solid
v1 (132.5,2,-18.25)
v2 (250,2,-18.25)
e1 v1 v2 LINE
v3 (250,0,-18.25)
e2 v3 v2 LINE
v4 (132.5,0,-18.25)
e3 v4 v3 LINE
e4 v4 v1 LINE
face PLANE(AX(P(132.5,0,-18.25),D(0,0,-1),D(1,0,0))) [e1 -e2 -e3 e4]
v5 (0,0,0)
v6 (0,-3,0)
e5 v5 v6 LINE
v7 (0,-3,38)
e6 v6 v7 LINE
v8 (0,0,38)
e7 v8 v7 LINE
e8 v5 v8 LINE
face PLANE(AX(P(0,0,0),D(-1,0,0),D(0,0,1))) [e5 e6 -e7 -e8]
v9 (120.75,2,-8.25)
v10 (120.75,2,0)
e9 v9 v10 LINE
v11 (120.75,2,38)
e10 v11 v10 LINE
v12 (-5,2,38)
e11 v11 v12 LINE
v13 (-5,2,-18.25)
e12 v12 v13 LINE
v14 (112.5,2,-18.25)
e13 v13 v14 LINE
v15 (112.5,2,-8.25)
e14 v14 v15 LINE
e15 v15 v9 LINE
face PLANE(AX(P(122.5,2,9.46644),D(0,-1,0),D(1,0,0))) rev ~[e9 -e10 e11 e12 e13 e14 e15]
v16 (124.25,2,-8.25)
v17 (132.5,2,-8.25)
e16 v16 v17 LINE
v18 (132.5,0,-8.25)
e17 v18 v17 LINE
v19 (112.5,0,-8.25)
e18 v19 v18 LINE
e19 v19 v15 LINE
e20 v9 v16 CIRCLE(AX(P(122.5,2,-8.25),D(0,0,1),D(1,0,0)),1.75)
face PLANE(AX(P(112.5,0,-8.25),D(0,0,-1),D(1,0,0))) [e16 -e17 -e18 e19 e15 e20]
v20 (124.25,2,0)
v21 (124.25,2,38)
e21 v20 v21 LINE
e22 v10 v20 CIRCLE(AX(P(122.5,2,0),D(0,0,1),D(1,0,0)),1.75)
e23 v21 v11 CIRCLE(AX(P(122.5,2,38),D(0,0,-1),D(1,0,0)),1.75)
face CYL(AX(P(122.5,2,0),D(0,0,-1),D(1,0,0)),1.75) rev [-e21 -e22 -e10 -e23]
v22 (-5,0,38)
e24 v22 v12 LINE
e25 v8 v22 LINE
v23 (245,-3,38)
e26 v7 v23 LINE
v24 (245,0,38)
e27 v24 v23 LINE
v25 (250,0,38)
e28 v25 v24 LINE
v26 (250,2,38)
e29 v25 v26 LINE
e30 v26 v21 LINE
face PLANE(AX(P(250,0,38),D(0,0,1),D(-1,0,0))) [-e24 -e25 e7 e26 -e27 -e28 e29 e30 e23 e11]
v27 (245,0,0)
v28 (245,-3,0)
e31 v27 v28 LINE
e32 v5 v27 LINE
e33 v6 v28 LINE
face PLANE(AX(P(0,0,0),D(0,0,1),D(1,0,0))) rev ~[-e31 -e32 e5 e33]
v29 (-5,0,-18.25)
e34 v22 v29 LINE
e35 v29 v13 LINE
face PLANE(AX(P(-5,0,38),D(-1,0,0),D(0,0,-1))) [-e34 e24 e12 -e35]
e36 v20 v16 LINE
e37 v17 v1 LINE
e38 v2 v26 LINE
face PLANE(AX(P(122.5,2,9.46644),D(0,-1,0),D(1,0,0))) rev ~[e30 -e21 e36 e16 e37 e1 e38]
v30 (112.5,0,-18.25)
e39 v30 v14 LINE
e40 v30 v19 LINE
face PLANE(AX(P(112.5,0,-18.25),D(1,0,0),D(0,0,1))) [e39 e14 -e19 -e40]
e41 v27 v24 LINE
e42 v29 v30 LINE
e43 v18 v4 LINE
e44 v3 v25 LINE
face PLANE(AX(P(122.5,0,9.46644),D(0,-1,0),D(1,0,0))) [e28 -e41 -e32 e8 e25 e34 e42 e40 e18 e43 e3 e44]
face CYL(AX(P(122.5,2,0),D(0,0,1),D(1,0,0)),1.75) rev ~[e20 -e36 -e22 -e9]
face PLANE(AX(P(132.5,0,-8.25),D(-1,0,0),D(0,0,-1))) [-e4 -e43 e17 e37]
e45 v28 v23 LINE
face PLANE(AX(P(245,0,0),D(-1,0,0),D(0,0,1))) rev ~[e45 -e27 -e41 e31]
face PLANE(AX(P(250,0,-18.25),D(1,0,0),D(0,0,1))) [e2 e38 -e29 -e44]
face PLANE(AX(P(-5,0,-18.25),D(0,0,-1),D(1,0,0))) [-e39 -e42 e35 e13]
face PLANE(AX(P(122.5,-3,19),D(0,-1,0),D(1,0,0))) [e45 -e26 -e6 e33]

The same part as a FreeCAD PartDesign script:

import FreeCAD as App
import Part
import Sketcher

V = App.Vector


def add_polygon(sketch, points):
    """Adds a closed chain of lines whose ends are joined by coincident constraints."""
    first, n = sketch.GeometryCount, len(points)
    for a, b in zip(points, points[1:] + points[:1]):
        sketch.addGeometry(Part.LineSegment(App.Vector(*a, 0), App.Vector(*b, 0)), False)
    for i in range(n):
        sketch.addConstraint(Sketcher.Constraint("Coincident", first + i, 2, first + (i + 1) % n, 1))

doc = App.newDocument("Part")
params = doc.addObject("Spreadsheet::Sheet", "Params")
for row, (alias, value) in enumerate([
    ("sketch1_width", "245 mm"),
    ("sketch1_height", "38 mm"),
    ("pad1_length", "3 mm"),
    ("sketch2_width", "20 mm"),
    ("sketch2_width2", "255 mm"),
    ("sketch2_height", "10 mm"),
    ("sketch2_height2", "56.25 mm"),
    ("pad2_length", "2 mm"),
    ("sketch3_diameter", "3.5 mm"),
], start=1):
    params.set(f"A{row}", alias)
    params.set(f"B{row}", "=" + value)
    params.setAlias(f"B{row}", alias)

body = doc.addObject("PartDesign::Body", "Body")

sketch1 = doc.addObject("Sketcher::SketchObject", "Sketch")
body.addObject(sketch1)
sketch1.AttachmentSupport = (doc.XZ_Plane, [""])
sketch1.MapMode = "FlatFace"
add_polygon(sketch1, [(0, 38), (0, 0), (245, 0), (245, 38)])
sketch1.addConstraint(Sketcher.Constraint("Vertical", 0))
sketch1.addConstraint(Sketcher.Constraint("Horizontal", 1))
sketch1.addConstraint(Sketcher.Constraint("Vertical", 2))
sketch1.addConstraint(Sketcher.Constraint("Horizontal", 3))
sketch1.addConstraint(Sketcher.Constraint("Coincident", 0, 2, -1, 1))
sketch1.addConstraint(Sketcher.Constraint("DistanceX", 1, 1, 1, 2, 245.0))
sketch1.addConstraint(Sketcher.Constraint("DistanceY", 0, 2, 0, 1, 38.0))
sketch1.setExpression("Constraints[9]", "Params.sketch1_width")
sketch1.setExpression("Constraints[10]", "Params.sketch1_height")
pad1 = doc.addObject("PartDesign::Pad", "Pad")
body.addObject(pad1)
pad1.Profile = sketch1
pad1.setExpression("Length", "Params.pad1_length")

sketch2 = doc.addObject("Sketcher::SketchObject", "Sketch001")
body.addObject(sketch2)
sketch2.AttachmentSupport = (doc.XZ_Plane, [""])
sketch2.MapMode = "FlatFace"
add_polygon(sketch2, [(-5, 38), (-5, -18.25), (112.5, -18.25), (112.5, -8.25), (132.5, -8.25), (132.5, -18.25), (250, -18.25), (250, 38)])
sketch2.addConstraint(Sketcher.Constraint("Vertical", 0))
sketch2.addConstraint(Sketcher.Constraint("Horizontal", 1))
sketch2.addConstraint(Sketcher.Constraint("Vertical", 2))
sketch2.addConstraint(Sketcher.Constraint("Horizontal", 3))
sketch2.addConstraint(Sketcher.Constraint("Vertical", 4))
sketch2.addConstraint(Sketcher.Constraint("Horizontal", 5))
sketch2.addConstraint(Sketcher.Constraint("Vertical", 6))
sketch2.addConstraint(Sketcher.Constraint("Horizontal", 7))
sketch2.addConstraint(Sketcher.Constraint("Horizontal", 1, 2, 4, 2))
sketch2.addConstraint(Sketcher.Constraint("Equal", 1, 5))
sketch2.addConstraint(Sketcher.Constraint("DistanceX", 3, 1, 3, 2, 20.0))
sketch2.addConstraint(Sketcher.Constraint("DistanceX", 7, 2, 7, 1, 255.0))
sketch2.addConstraint(Sketcher.Constraint("DistanceY", 2, 1, 2, 2, 10.0))
sketch2.addConstraint(Sketcher.Constraint("DistanceX", 0, 2, -1, 1, 5.0))
sketch2.addConstraint(Sketcher.Constraint("DistanceY", -1, 1, 6, 2, 38.0))
sketch2.addConstraint(Sketcher.Constraint("DistanceY", 0, 2, 0, 1, 56.25))
sketch2.setExpression("Constraints[18]", "Params.sketch2_width")
sketch2.setExpression("Constraints[19]", "Params.sketch2_width2")
sketch2.setExpression("Constraints[20]", "Params.sketch2_height")
sketch2.setExpression("Constraints[23]", "Params.sketch2_height2")
pad2 = doc.addObject("PartDesign::Pad", "Pad001")
body.addObject(pad2)
pad2.Profile = sketch2
pad2.setExpression("Length", "Params.pad2_length")
pad2.Reversed = True

sketch3 = doc.addObject("Sketcher::SketchObject", "Sketch002")
body.addObject(sketch3)
sketch3.AttachmentSupport = (doc.XY_Plane, [""])
sketch3.MapMode = "FlatFace"
sketch3.addGeometry(Part.Circle(V(122.5, 2, 0), V(0, 0, 1), 1.75), False)
sketch3.addConstraint(Sketcher.Constraint("Diameter", 0, 3.5))
sketch3.addConstraint(Sketcher.Constraint("DistanceY", -1, 1, 0, 3, 2.0))
sketch3.addConstraint(Sketcher.Constraint("DistanceX", -1, 1, 0, 3, 122.5))
sketch3.setExpression("Constraints[0]", "Params.sketch3_diameter")
pocket1 = doc.addObject("PartDesign::Pocket", "Pocket")
body.addObject(pocket1)
pocket1.Profile = sketch3
pocket1.Type = "ThroughAll"
pocket1.Midplane = True

doc.recompute()
